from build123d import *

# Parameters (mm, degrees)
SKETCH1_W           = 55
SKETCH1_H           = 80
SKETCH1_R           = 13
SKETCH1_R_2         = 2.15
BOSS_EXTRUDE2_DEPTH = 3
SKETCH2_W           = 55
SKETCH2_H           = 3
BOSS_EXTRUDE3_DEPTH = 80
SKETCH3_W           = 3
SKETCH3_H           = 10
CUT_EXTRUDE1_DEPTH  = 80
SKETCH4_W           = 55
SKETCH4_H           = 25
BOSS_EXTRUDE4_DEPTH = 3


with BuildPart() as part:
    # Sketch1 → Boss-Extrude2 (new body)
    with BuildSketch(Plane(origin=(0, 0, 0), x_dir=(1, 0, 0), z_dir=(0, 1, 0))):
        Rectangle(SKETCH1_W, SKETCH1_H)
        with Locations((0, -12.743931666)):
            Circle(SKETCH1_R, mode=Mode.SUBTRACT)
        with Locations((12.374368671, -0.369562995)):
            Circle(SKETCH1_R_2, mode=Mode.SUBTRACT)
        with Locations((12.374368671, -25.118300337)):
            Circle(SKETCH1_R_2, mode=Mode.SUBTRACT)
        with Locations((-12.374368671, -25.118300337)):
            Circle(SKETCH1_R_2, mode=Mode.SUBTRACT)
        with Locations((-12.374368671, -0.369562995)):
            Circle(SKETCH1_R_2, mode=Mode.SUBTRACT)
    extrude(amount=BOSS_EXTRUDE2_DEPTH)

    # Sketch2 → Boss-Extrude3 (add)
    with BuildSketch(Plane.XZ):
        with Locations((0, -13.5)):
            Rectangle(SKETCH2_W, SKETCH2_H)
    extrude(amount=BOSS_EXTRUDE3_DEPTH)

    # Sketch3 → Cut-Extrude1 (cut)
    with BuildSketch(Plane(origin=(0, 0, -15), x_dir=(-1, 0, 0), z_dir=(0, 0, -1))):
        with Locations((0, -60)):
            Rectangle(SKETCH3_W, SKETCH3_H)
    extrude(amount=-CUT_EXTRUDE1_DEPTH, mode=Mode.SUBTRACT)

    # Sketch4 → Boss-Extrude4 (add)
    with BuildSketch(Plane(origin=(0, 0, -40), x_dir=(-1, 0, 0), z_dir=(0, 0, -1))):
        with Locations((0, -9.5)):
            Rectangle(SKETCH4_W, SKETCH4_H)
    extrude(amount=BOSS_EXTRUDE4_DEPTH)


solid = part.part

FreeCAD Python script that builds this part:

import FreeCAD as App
import Part
import Sketcher
from FreeCAD import Vector
Q = App.Units.Quantity

doc = App.newDocument("Part")
params = doc.addObject("Spreadsheet::Sheet", "Params")
for row, (alias, value) in enumerate([
    ("sketch1_diameter", "26 mm"),
    ("sketch1_diameter2", "4.3 mm"),
    ("sketch1_width", "55 mm"),
    ("sketch1_height", "80 mm"),
    ("pad1_length", "3 mm"),
    ("sketch2_width", "55 mm"),
    ("sketch2_height", "3 mm"),
    ("pad2_length", "80 mm"),
    ("sketch3_width", "3 mm"),
    ("sketch3_height", "10 mm"),
    ("pocket1_length", "80 mm"),
    ("sketch4_width", "55 mm"),
    ("sketch4_height", "25 mm"),
    ("pad3_length", "3 mm"),
], start=1):
    params.set(f"A{row}", alias)
    params.set(f"B{row}", "=" + value)
    params.setAlias(f"B{row}", alias)

body = doc.addObject("PartDesign::Body", "Body")

sketch1 = body.newObject("Sketcher::SketchObject", "Sketch")
sketch1.AttachmentSupport = (doc.getObject("XZ_Plane"), [""])
sketch1.MapMode = "FlatFace"
sketch1.addGeometry(Part.LineSegment(Vector(-27.5, -40, 0), Vector(-27.5, 40, 0)), False)
sketch1.addGeometry(Part.LineSegment(Vector(-27.5, 40, 0), Vector(27.5, 40, 0)), False)
sketch1.addGeometry(Part.LineSegment(Vector(27.5, 40, 0), Vector(27.5, -40, 0)), False)
sketch1.addGeometry(Part.LineSegment(Vector(27.5, -40, 0), Vector(-27.5, -40, 0)), False)
sketch1.addGeometry(Part.Circle(Vector(-12.374369, 25.1183, 0), Vector(0, 0, 1), 2.15), False)
sketch1.addGeometry(Part.Circle(Vector(0, 12.743932, 0), Vector(0, 0, 1), 13), False)
sketch1.addGeometry(Part.Circle(Vector(12.374369, 25.1183, 0), Vector(0, 0, 1), 2.15), False)
sketch1.addGeometry(Part.Circle(Vector(-12.374369, 0.369563, 0), Vector(0, 0, 1), 2.15), False)
sketch1.addGeometry(Part.Circle(Vector(12.374369, 0.369563, 0), Vector(0, 0, 1), 2.15), False)
sketch1.addConstraint(Sketcher.Constraint("Coincident", 0, 2, 1, 1))
sketch1.addConstraint(Sketcher.Constraint("Coincident", 1, 2, 2, 1))
sketch1.addConstraint(Sketcher.Constraint("Coincident", 2, 2, 3, 1))
sketch1.addConstraint(Sketcher.Constraint("Coincident", 3, 2, 0, 1))
sketch1.addConstraint(Sketcher.Constraint("Vertical", 0))
sketch1.addConstraint(Sketcher.Constraint("Horizontal", 1))
sketch1.addConstraint(Sketcher.Constraint("Vertical", 2))
sketch1.addConstraint(Sketcher.Constraint("Horizontal", 3))
sketch1.addConstraint(Sketcher.Constraint("Equal", 4, 6))
sketch1.addConstraint(Sketcher.Constraint("Equal", 6, 7))
sketch1.addConstraint(Sketcher.Constraint("Equal", 7, 8))
sketch1.addConstraint(Sketcher.Constraint("Symmetric", 0, 2, 2, 2, -1, 1))
sketch1.addConstraint(Sketcher.Constraint("Symmetric", 4, 3, 6, 3, -2))
sketch1.addConstraint(Sketcher.Constraint("Symmetric", 7, 3, 8, 3, -2))
sketch1.addConstraint(Sketcher.Constraint("PointOnObject", 5, 3, -2))
sketch1.addConstraint(Sketcher.Constraint("Vertical", 4, 3, 7, 3))
sketch1.addConstraint(Sketcher.Constraint("Diameter", 5, Q("26 mm")))
sketch1.addConstraint(Sketcher.Constraint("Diameter", 4, Q("4.3 mm")))
sketch1.addConstraint(Sketcher.Constraint("DistanceX", 1, 1, 1, 2, Q("55 mm")))
sketch1.addConstraint(Sketcher.Constraint("DistanceY", 0, 1, 0, 2, Q("80 mm")))
sketch1.addConstraint(Sketcher.Constraint("DistanceY", -1, 1, 4, 3, Q("25.1183 mm")))
sketch1.addConstraint(Sketcher.Constraint("DistanceX", 4, 3, -1, 1, Q("12.374369 mm")))
sketch1.addConstraint(Sketcher.Constraint("DistanceY", -1, 1, 5, 3, Q("12.743932 mm")))
sketch1.addConstraint(Sketcher.Constraint("DistanceY", 7, 3, 5, 3, Q("12.374369 mm")))
sketch1.setExpression("Constraints[16]", "Params.sketch1_diameter")
sketch1.setExpression("Constraints[17]", "Params.sketch1_diameter2")
sketch1.setExpression("Constraints[18]", "Params.sketch1_width")
sketch1.setExpression("Constraints[19]", "Params.sketch1_height")
pad1 = body.newObject("PartDesign::Pad", "Pad")
pad1.Profile = sketch1
pad1.setExpression("Length", "Params.pad1_length")
pad1.Reversed = True

sketch2 = body.newObject("Sketcher::SketchObject", "Sketch001")
sketch2.AttachmentSupport = (doc.getObject("XZ_Plane"), [""])
sketch2.MapMode = "FlatFace"
sketch2.addGeometry(Part.LineSegment(Vector(-27.5, -12, 0), Vector(-27.5, -15, 0)), False)
sketch2.addGeometry(Part.LineSegment(Vector(-27.5, -15, 0), Vector(27.5, -15, 0)), False)
sketch2.addGeometry(Part.LineSegment(Vector(27.5, -15, 0), Vector(27.5, -12, 0)), False)
sketch2.addGeometry(Part.LineSegment(Vector(27.5, -12, 0), Vector(-27.5, -12, 0)), False)
sketch2.addConstraint(Sketcher.Constraint("Coincident", 0, 2, 1, 1))
sketch2.addConstraint(Sketcher.Constraint("Coincident", 1, 2, 2, 1))
sketch2.addConstraint(Sketcher.Constraint("Coincident", 2, 2, 3, 1))
sketch2.addConstraint(Sketcher.Constraint("Coincident", 3, 2, 0, 1))
sketch2.addConstraint(Sketcher.Constraint("Vertical", 0))
sketch2.addConstraint(Sketcher.Constraint("Horizontal", 1))
sketch2.addConstraint(Sketcher.Constraint("Vertical", 2))
sketch2.addConstraint(Sketcher.Constraint("Horizontal", 3))
sketch2.addConstraint(Sketcher.Constraint("DistanceX", 1, 1, 1, 2, Q("55 mm")))
sketch2.addConstraint(Sketcher.Constraint("DistanceY", 0, 2, 0, 1, Q("3 mm")))
sketch2.addConstraint(Sketcher.Constraint("DistanceY", 0, 2, -1, 1, Q("15 mm")))
sketch2.addConstraint(Sketcher.Constraint("DistanceX", 0, 2, -1, 1, Q("27.5 mm")))
sketch2.setExpression("Constraints[8]", "Params.sketch2_width")
sketch2.setExpression("Constraints[9]", "Params.sketch2_height")
pad2 = body.newObject("PartDesign::Pad", "Pad001")
pad2.Profile = sketch2
pad2.setExpression("Length", "Params.pad2_length")

sketch3 = body.newObject("Sketcher::SketchObject", "Sketch002")
sketch3.AttachmentSupport = (doc.getObject("XY_Plane"), [""])
sketch3.MapMode = "FlatFace"
sketch3.AttachmentOffset = App.Placement(Vector(0, 0, -15), App.Rotation())
sketch3.addGeometry(Part.LineSegment(Vector(1.5, -55, 0), Vector(1.5, -65, 0)), False)
sketch3.addGeometry(Part.LineSegment(Vector(1.5, -65, 0), Vector(-1.5, -65, 0)), False)
sketch3.addGeometry(Part.LineSegment(Vector(-1.5, -65, 0), Vector(-1.5, -55, 0)), False)
sketch3.addGeometry(Part.LineSegment(Vector(-1.5, -55, 0), Vector(1.5, -55, 0)), False)
sketch3.addConstraint(Sketcher.Constraint("Coincident", 0, 2, 1, 1))
sketch3.addConstraint(Sketcher.Constraint("Coincident", 1, 2, 2, 1))
sketch3.addConstraint(Sketcher.Constraint("Coincident", 2, 2, 3, 1))
sketch3.addConstraint(Sketcher.Constraint("Coincident", 3, 2, 0, 1))
sketch3.addConstraint(Sketcher.Constraint("Vertical", 0))
sketch3.addConstraint(Sketcher.Constraint("Horizontal", 1))
sketch3.addConstraint(Sketcher.Constraint("Vertical", 2))
sketch3.addConstraint(Sketcher.Constraint("Horizontal", 3))
sketch3.addConstraint(Sketcher.Constraint("DistanceX", 1, 2, 1, 1, Q("3 mm")))
sketch3.addConstraint(Sketcher.Constraint("DistanceY", 0, 2, 0, 1, Q("10 mm")))
sketch3.addConstraint(Sketcher.Constraint("DistanceY", 0, 2, -1, 1, Q("65 mm")))
sketch3.addConstraint(Sketcher.Constraint("DistanceX", -1, 1, 0, 2, Q("1.5 mm")))
sketch3.setExpression("Constraints[8]", "Params.sketch3_width")
sketch3.setExpression("Constraints[9]", "Params.sketch3_height")
pocket1 = body.newObject("PartDesign::Pocket", "Pocket")
pocket1.Profile = sketch3
pocket1.setExpression("Length", "Params.pocket1_length")
pocket1.Reversed = True

sketch4 = body.newObject("Sketcher::SketchObject", "Sketch003")
sketch4.AttachmentSupport = (doc.getObject("XY_Plane"), [""])
sketch4.MapMode = "FlatFace"
sketch4.AttachmentOffset = App.Placement(Vector(0, 0, -40), App.Rotation())
sketch4.addGeometry(Part.LineSegment(Vector(27.5, 3, 0), Vector(27.5, -22, 0)), False)
sketch4.addGeometry(Part.LineSegment(Vector(27.5, -22, 0), Vector(-27.5, -22, 0)), False)
sketch4.addGeometry(Part.LineSegment(Vector(-27.5, -22, 0), Vector(-27.5, 3, 0)), False)
sketch4.addGeometry(Part.LineSegment(Vector(-27.5, 3, 0), Vector(27.5, 3, 0)), False)
sketch4.addConstraint(Sketcher.Constraint("Coincident", 0, 2, 1, 1))
sketch4.addConstraint(Sketcher.Constraint("Coincident", 1, 2, 2, 1))
sketch4.addConstraint(Sketcher.Constraint("Coincident", 2, 2, 3, 1))
sketch4.addConstraint(Sketcher.Constraint("Coincident", 3, 2, 0, 1))
sketch4.addConstraint(Sketcher.Constraint("Vertical", 0))
sketch4.addConstraint(Sketcher.Constraint("Horizontal", 1))
sketch4.addConstraint(Sketcher.Constraint("Vertical", 2))
sketch4.addConstraint(Sketcher.Constraint("Horizontal", 3))
sketch4.addConstraint(Sketcher.Constraint("DistanceX", 1, 2, 1, 1, Q("55 mm")))
sketch4.addConstraint(Sketcher.Constraint("DistanceY", 0, 2, 0, 1, Q("25 mm")))
sketch4.addConstraint(Sketcher.Constraint("DistanceY", 0, 2, -1, 1, Q("22 mm")))
sketch4.addConstraint(Sketcher.Constraint("DistanceX", -1, 1, 0, 2, Q("27.5 mm")))
sketch4.setExpression("Constraints[8]", "Params.sketch4_width")
sketch4.setExpression("Constraints[9]", "Params.sketch4_height")
pad3 = body.newObject("PartDesign::Pad", "Pad002")
pad3.Profile = sketch4
pad3.setExpression("Length", "Params.pad3_length")
pad3.Reversed = True

doc.recompute()
